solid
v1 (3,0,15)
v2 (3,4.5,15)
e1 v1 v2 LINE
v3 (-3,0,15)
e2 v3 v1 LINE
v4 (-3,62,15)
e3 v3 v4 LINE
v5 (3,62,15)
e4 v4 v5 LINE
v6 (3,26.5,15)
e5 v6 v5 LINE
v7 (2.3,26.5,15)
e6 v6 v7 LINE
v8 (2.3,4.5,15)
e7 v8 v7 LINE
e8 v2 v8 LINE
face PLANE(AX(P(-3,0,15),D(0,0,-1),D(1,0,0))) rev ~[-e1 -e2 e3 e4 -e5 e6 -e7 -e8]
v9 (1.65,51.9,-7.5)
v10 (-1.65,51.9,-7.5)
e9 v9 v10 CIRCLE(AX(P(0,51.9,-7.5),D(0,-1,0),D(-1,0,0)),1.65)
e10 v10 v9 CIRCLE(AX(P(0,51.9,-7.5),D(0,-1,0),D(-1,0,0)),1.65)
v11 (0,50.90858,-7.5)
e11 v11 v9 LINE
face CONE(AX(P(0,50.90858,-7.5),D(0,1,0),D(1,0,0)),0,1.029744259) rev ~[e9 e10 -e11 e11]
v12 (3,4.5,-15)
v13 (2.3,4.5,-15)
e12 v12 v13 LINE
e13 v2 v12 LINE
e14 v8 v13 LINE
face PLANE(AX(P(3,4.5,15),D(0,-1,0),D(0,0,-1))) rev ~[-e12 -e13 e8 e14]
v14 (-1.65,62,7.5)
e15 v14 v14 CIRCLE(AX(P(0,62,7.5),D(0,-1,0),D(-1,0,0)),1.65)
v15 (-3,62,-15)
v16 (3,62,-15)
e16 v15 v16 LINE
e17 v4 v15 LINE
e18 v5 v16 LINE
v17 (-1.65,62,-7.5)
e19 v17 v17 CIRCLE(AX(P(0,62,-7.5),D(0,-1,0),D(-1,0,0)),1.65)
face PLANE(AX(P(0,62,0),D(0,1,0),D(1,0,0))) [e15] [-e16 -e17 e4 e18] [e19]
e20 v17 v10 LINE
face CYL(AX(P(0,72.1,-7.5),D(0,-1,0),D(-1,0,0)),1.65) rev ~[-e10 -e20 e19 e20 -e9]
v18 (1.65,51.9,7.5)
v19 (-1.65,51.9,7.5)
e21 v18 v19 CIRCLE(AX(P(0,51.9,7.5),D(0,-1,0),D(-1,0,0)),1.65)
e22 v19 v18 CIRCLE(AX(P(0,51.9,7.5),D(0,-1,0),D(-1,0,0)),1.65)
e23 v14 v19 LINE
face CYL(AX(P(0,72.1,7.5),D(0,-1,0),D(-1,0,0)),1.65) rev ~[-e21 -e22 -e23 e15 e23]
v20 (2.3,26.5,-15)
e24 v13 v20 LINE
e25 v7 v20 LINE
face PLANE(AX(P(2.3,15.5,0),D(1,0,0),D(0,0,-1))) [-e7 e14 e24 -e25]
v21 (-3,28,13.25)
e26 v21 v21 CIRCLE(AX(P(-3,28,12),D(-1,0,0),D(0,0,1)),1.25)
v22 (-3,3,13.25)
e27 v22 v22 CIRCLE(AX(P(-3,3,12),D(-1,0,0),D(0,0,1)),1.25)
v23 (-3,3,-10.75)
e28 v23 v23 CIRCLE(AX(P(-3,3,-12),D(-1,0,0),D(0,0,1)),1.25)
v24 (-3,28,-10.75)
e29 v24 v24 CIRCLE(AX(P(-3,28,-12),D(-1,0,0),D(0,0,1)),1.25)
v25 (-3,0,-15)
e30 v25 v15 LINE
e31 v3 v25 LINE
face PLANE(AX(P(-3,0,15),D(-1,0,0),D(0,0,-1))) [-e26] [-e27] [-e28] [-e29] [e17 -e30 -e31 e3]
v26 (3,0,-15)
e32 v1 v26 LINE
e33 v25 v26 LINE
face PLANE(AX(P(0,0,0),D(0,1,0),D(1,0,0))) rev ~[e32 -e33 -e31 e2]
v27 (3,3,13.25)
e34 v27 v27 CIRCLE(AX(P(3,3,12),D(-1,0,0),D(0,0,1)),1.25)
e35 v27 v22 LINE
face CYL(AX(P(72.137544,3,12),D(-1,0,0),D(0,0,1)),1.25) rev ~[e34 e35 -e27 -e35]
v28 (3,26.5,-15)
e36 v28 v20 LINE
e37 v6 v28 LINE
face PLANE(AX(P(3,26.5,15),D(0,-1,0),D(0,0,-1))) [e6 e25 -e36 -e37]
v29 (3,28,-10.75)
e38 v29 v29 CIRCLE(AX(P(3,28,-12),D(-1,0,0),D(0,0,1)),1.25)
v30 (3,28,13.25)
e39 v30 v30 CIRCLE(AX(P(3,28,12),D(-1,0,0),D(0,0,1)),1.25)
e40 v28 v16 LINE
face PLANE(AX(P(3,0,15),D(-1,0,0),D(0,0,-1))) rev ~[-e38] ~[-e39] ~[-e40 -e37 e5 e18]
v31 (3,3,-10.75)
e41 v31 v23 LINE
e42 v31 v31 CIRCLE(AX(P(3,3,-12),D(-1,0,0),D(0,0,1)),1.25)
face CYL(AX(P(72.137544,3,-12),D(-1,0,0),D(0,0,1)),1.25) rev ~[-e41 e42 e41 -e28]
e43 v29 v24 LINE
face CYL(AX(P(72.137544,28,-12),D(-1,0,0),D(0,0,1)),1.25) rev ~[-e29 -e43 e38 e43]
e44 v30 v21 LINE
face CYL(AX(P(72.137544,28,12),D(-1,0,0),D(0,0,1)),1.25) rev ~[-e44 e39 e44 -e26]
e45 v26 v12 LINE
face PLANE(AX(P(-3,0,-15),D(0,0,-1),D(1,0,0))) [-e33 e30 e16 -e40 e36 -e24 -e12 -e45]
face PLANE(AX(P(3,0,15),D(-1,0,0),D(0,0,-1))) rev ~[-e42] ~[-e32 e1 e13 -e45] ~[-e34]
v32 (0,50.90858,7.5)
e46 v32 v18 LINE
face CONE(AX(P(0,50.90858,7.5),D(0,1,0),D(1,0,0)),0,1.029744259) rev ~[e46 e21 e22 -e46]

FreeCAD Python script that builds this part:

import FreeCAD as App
import Part
import Sketcher
from FreeCAD import Vector
Q = App.Units.Quantity

doc = App.newDocument("Part")
body = doc.addObject("PartDesign::Body", "Body")

sketch1 = doc.addObject("Sketcher::SketchObject", "Sketch")
body.addObject(sketch1)
sketch1.AttachmentSupport = (doc.XZ_Plane, [""])
sketch1.MapMode = "FlatFace"
sketch1.addGeometry([
    Part.LineSegment(Vector(-3, -15, 0), Vector(-3, 15, 0)),
    Part.LineSegment(Vector(-3, 15, 0), Vector(3, 15, 0)),
    Part.LineSegment(Vector(3, 15, 0), Vector(3, -15, 0)),
    Part.LineSegment(Vector(3, -15, 0), Vector(-3, -15, 0)),
], False)
sketch1.addConstraint([
    Sketcher.Constraint("Coincident", 0, 2, 1, 1),
    Sketcher.Constraint("Coincident", 1, 2, 2, 1),
    Sketcher.Constraint("Coincident", 2, 2, 3, 1),
    Sketcher.Constraint("Coincident", 3, 2, 0, 1),
    Sketcher.Constraint("Vertical", 0),
    Sketcher.Constraint("Horizontal", 1),
    Sketcher.Constraint("Vertical", 2),
    Sketcher.Constraint("Horizontal", 3),
    Sketcher.Constraint("Symmetric", 0, 2, 2, 2, -1, 1),
    Sketcher.Constraint("DistanceX", 1, 1, 1, 2, Q("6 mm")),
    Sketcher.Constraint("DistanceY", 0, 1, 0, 2, Q("30 mm")),
])
pad1 = doc.addObject("PartDesign::Pad", "Pad")
body.addObject(pad1)
pad1.Profile = sketch1
pad1.Length = 62
pad1.Reversed = True

sketch2 = doc.addObject("Sketcher::SketchObject", "Sketch001")
body.addObject(sketch2)
sketch2.AttachmentSupport = (doc.XZ_Plane, [""])
sketch2.MapMode = "FlatFace"
sketch2.AttachmentOffset = App.Placement(Vector(0, 0, -62), App.Rotation())
sketch2.addGeometry([
    Part.Circle(Vector(0, -7.5, 0), Vector(0, 0, 1), 1.6),
    Part.Circle(Vector(0, 7.5, 0), Vector(0, 0, 1), 1.6),
], False)
sketch2.addConstraint([
    Sketcher.Constraint("Equal", 0, 1),
    Sketcher.Constraint("Symmetric", 0, 3, 1, 3, -1, 1),
    Sketcher.Constraint("PointOnObject", 0, 3, -2),
    Sketcher.Constraint("Diameter", 0, Q("3.3 mm")),
    Sketcher.Constraint("DistanceY", 0, 3, 1, 3, Q("15 mm")),
])
doc.recompute()
hole = doc.addObject("PartDesign::Hole", "Hole")
body.addObject(hole)
hole.Profile = sketch2
hole.ThreadType = "None"
hole.Diameter = 3.3
hole.DepthType = "Dimension"
hole.Depth = 10.1
hole.DrillPoint = "Angled"
hole.DrillPointAngle = 118
hole.Reversed = True

sketch3 = doc.addObject("Sketcher::SketchObject", "Sketch002")
body.addObject(sketch3)
sketch3.AttachmentSupport = (doc.YZ_Plane, [""])
sketch3.MapMode = "FlatFace"
sketch3.AttachmentOffset = App.Placement(Vector(0, 0, 3), App.Rotation())
sketch3.addGeometry([
    Part.LineSegment(Vector(26, 15, 0), Vector(4, 15, 0)),
    Part.LineSegment(Vector(4, 15, 0), Vector(4, -15, 0)),
    Part.LineSegment(Vector(4, -15, 0), Vector(26, -15, 0)),
    Part.LineSegment(Vector(26, -15, 0), Vector(26, 15, 0)),
], False)
sketch3.addConstraint([
    Sketcher.Constraint("Coincident", 0, 2, 1, 1),
    Sketcher.Constraint("Coincident", 1, 2, 2, 1),
    Sketcher.Constraint("Coincident", 2, 2, 3, 1),
    Sketcher.Constraint("Coincident", 3, 2, 0, 1),
    Sketcher.Constraint("Horizontal", 0),
    Sketcher.Constraint("Vertical", 1),
    Sketcher.Constraint("Horizontal", 2),
    Sketcher.Constraint("Vertical", 3),
    Sketcher.Constraint("DistanceX", 0, 2, 0, 1, Q("22 mm")),
    Sketcher.Constraint("DistanceY", 1, 2, 1, 1, Q("30 mm")),
    Sketcher.Constraint("DistanceY", -1, 1, 0, 2, Q("15 mm")),
    Sketcher.Constraint("DistanceX", -1, 1, 0, 2, Q("4.5 mm")),
])
pocket1 = doc.addObject("PartDesign::Pocket", "Pocket")
body.addObject(pocket1)
pocket1.Profile = sketch3
pocket1.Length = 0.7

sketch4 = doc.addObject("Sketcher::SketchObject", "Sketch003")
body.addObject(sketch4)
sketch4.AttachmentSupport = (doc.YZ_Plane, [""])
sketch4.MapMode = "FlatFace"
sketch4.AttachmentOffset = App.Placement(Vector(0, 0, 3), App.Rotation())
sketch4.addGeometry([
    Part.Circle(Vector(28, 12, 0), Vector(0, 0, 1), 1.2),
    Part.Circle(Vector(28, -12, 0), Vector(0, 0, 1), 1.2),
    Part.Circle(Vector(3, -12, 0), Vector(0, 0, 1), 1.2),
    Part.Circle(Vector(3, 12, 0), Vector(0, 0, 1), 1.2),
], False)
sketch4.addConstraint([
    Sketcher.Constraint("Equal", 0, 1),
    Sketcher.Constraint("Equal", 1, 2),
    Sketcher.Constraint("Equal", 2, 3),
    Sketcher.Constraint("Symmetric", 0, 3, 1, 3, -1),
    Sketcher.Constraint("Symmetric", 2, 3, 3, 3, -1),
    Sketcher.Constraint("Horizontal", 1, 3, 2, 3),
    Sketcher.Constraint("Diameter", 0, Q("2.5 mm")),
    Sketcher.Constraint("DistanceX", -1, 1, 0, 3, Q("28 mm")),
    Sketcher.Constraint("DistanceY", -1, 1, 0, 3, Q("12 mm")),
    Sketcher.Constraint("DistanceX", -1, 1, 2, 3, Q("3 mm")),
])
doc.recompute()
hole2 = doc.addObject("PartDesign::Hole", "Hole001")
body.addObject(hole2)
hole2.Profile = sketch4
hole2.ThreadType = "None"
hole2.Diameter = 2.5
hole2.DepthType = "ThroughAll"

doc.recompute()
